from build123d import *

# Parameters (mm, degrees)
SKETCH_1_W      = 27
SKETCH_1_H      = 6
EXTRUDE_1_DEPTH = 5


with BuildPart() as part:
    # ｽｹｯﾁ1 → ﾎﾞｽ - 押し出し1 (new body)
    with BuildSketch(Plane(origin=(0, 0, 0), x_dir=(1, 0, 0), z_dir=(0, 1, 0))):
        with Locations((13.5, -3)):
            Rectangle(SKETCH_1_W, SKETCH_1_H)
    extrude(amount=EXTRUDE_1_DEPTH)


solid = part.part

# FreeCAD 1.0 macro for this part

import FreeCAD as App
import Part
import Sketcher

V = App.Vector
Q = App.Units.Quantity

doc = App.newDocument("Part")
body = doc.addObject("PartDesign::Body", "Body")

# Sketch on XZ plane
sketch1 = doc.addObject("Sketcher::SketchObject", "Sketch")
body.addObject(sketch1)
sketch1.AttachmentSupport = (doc.XZ_Plane, [""])
sketch1.MapMode = "FlatFace"
sketch1.addGeometry(Part.LineSegment(V(0, 0, 0), V(0, 6, 0)), False)
sketch1.addGeometry(Part.LineSegment(V(0, 6, 0), V(27, 6, 0)), False)
sketch1.addGeometry(Part.LineSegment(V(27, 6, 0), V(27, 0, 0)), False)
sketch1.addGeometry(Part.LineSegment(V(27, 0, 0), V(0, 0, 0)), False)
sketch1.addConstraint(Sketcher.Constraint("Coincident", 0, 2, 1, 1))
sketch1.addConstraint(Sketcher.Constraint("Coincident", 1, 2, 2, 1))
sketch1.addConstraint(Sketcher.Constraint("Coincident", 2, 2, 3, 1))
sketch1.addConstraint(Sketcher.Constraint("Coincident", 3, 2, 0, 1))
sketch1.addConstraint(Sketcher.Constraint("Vertical", 0))
sketch1.addConstraint(Sketcher.Constraint("Horizontal", 1))
sketch1.addConstraint(Sketcher.Constraint("Vertical", 2))
sketch1.addConstraint(Sketcher.Constraint("Horizontal", 3))
sketch1.addConstraint(Sketcher.Constraint("Coincident", 3, 2, -1, 1))
sketch1.addConstraint(Sketcher.Constraint("DistanceX", 1, 1, 1, 2, Q("27 mm")))
sketch1.addConstraint(Sketcher.Constraint("DistanceY", 0, 1, 0, 2, Q("6 mm")))
pad1 = doc.addObject("PartDesign::Pad", "Pad")
body.addObject(pad1)
pad1.Profile = sketch1
pad1.Length = 5
pad1.Reversed = True

doc.recompute()
